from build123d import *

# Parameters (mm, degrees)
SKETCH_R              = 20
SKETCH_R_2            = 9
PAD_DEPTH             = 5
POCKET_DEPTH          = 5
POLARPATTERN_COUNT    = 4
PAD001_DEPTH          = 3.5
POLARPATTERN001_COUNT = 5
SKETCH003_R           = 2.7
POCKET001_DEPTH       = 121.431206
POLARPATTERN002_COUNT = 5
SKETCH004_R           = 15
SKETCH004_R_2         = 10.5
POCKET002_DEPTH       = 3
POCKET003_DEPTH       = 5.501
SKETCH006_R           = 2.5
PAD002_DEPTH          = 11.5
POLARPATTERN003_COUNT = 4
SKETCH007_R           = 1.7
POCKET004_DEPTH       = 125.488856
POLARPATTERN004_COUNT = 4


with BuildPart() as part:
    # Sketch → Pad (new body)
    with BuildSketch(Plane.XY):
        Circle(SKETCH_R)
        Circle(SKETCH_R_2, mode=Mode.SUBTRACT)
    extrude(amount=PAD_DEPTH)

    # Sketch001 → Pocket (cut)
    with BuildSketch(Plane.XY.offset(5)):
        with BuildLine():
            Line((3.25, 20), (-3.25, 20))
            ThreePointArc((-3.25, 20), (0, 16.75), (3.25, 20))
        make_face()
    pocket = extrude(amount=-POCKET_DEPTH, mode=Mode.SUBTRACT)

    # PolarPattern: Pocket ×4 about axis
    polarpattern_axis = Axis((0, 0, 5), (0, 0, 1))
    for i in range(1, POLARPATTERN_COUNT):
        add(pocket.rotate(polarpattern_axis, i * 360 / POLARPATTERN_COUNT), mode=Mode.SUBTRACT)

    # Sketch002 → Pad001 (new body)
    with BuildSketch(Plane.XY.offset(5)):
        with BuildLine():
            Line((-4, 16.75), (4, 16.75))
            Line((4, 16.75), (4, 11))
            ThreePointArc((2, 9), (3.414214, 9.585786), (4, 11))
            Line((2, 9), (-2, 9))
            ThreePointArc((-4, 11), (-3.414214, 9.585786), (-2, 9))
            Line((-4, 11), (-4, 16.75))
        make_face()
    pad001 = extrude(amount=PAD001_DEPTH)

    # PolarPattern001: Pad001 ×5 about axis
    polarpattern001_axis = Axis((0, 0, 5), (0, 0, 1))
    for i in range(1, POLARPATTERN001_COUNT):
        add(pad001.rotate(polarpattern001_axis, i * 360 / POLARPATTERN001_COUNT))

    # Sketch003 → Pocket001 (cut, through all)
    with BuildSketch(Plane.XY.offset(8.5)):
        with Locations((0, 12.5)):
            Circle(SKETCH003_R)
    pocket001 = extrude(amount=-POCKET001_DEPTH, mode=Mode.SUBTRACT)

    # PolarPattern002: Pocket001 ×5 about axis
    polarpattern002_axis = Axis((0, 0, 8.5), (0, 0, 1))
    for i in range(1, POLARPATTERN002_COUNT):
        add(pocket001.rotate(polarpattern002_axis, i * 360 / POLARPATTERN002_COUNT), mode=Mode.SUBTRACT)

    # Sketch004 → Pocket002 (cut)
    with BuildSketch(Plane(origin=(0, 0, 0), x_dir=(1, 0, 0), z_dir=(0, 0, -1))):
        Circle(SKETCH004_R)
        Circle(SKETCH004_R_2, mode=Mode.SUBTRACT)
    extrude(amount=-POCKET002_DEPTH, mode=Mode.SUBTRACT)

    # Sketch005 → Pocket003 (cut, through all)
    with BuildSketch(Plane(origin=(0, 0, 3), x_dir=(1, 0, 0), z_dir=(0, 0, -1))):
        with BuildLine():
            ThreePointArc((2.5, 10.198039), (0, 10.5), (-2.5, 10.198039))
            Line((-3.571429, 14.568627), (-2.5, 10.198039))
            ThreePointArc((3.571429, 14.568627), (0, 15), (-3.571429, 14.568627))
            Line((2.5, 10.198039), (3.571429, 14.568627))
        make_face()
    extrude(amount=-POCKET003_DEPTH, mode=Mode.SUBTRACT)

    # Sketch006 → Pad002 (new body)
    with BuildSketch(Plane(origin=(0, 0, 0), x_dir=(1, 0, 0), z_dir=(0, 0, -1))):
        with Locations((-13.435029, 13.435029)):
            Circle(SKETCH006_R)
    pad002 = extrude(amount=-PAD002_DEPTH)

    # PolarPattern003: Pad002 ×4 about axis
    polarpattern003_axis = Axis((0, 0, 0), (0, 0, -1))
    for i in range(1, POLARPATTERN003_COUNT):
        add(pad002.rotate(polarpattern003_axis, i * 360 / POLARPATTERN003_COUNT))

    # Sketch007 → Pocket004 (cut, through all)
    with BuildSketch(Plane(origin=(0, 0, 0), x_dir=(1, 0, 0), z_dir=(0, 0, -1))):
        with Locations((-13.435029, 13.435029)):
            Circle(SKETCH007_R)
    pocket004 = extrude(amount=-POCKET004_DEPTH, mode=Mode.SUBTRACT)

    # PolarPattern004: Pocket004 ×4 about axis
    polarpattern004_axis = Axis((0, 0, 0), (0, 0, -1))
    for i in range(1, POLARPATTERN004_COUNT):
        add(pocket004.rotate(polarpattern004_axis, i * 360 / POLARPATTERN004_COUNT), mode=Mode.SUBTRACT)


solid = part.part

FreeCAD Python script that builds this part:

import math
import FreeCAD as App
import Part
import Sketcher
from FreeCAD import Vector

doc = App.newDocument("Part")
body = doc.addObject("PartDesign::Body", "Body")

sketch1 = body.newObject("Sketcher::SketchObject", "Sketch")
sketch1.AttachmentSupport = (doc.getObject("XY_Plane"), [""])
sketch1.MapMode = "FlatFace"
sketch1.addGeometry([
    Part.Circle(Vector(0, 0, 0), Vector(0, 0, 1), 20),
    Part.Circle(Vector(0, 0, 0), Vector(0, 0, 1), 9),
], False)
sketch1.addConstraint([
    Sketcher.Constraint("Coincident", 0, 3, -1, 1),
    Sketcher.Constraint("Coincident", 1, 3, -1, 1),
    Sketcher.Constraint("Diameter", 0, 40.0),
    Sketcher.Constraint("Diameter", 1, 18.0),
])
pad1 = body.newObject("PartDesign::Pad", "Pad")
pad1.Profile = sketch1
pad1.Length = 5

sketch2 = body.newObject("Sketcher::SketchObject", "Sketch001")
sketch2.AttachmentSupport = (doc.getObject("XY_Plane"), [""])
sketch2.MapMode = "FlatFace"
sketch2.AttachmentOffset = App.Placement(Vector(0, 0, 5), App.Rotation())
sketch2.addGeometry([
    Part.LineSegment(Vector(3.2, 20, 0), Vector(-3.2, 20, 0)),
    Part.ArcOfCircle(Part.Circle(Vector(0, 20, 0), Vector(0, 0, 1), 3.2), math.radians(180), math.radians(360)),
], False)
sketch2.addConstraint([
    Sketcher.Constraint("Coincident", 0, 1, 1, 2),
    Sketcher.Constraint("Coincident", 1, 1, 0, 2),
    Sketcher.Constraint("Horizontal", 0),
    Sketcher.Constraint("PointOnObject", 1, 3, -2),
    Sketcher.Constraint("Horizontal", 1, 3, 0, 1),
    Sketcher.Constraint("Radius", 1, 3.25),
    Sketcher.Constraint("DistanceY", -1, 1, 1, 3, 20.0),
])
pocket1 = body.newObject("PartDesign::Pocket", "Pocket")
pocket1.Profile = sketch2
pocket1.Length = 5
doc.recompute()

polarpattern = body.newObject("PartDesign::PolarPattern", "PolarPattern")
polarpattern.Originals = [pocket1]
polarpattern.Axis = (doc.getObject("Z_Axis"), [""])
polarpattern.Angle = 360
polarpattern.Occurrences = 4
body.Tip = polarpattern

sketch3 = body.newObject("Sketcher::SketchObject", "Sketch002")
sketch3.AttachmentSupport = (doc.getObject("XY_Plane"), [""])
sketch3.MapMode = "FlatFace"
sketch3.AttachmentOffset = App.Placement(Vector(0, 0, 5), App.Rotation())
sketch3.addGeometry([
    Part.LineSegment(Vector(4, 16.8, 0), Vector(-4, 16.8, 0)),
    Part.LineSegment(Vector(-4, 16.8, 0), Vector(-4, 11, 0)),
    Part.ArcOfCircle(Part.Circle(Vector(-2, 11, 0), Vector(0, 0, 1), 2), math.radians(180), math.radians(270)),
    Part.LineSegment(Vector(-2, 9, 0), Vector(2, 9, 0)),
    Part.ArcOfCircle(Part.Circle(Vector(2, 11, 0), Vector(0, 0, 1), 2), math.radians(-90), math.radians(0)),
    Part.LineSegment(Vector(4, 11, 0), Vector(4, 16.8, 0)),
], False)
sketch3.addConstraint([
    Sketcher.Constraint("Coincident", 0, 2, 1, 1),
    Sketcher.Constraint("Tangent", 1, 2, 2, 1),
    Sketcher.Constraint("Tangent", 2, 2, 3, 1),
    Sketcher.Constraint("Tangent", 3, 2, 4, 1),
    Sketcher.Constraint("Tangent", 4, 2, 5, 1),
    Sketcher.Constraint("Coincident", 5, 2, 0, 1),
    Sketcher.Constraint("Horizontal", 0),
    Sketcher.Constraint("Vertical", 1),
    Sketcher.Constraint("Horizontal", 3),
    Sketcher.Constraint("Vertical", 5),
    Sketcher.Constraint("Equal", 2, 4),
    Sketcher.Constraint("Radius", 2, 1.999999),
    Sketcher.Constraint("DistanceX", 0, 2, 0, 1, 8.0),
    Sketcher.Constraint("DistanceX", 2, 3, -1, 1, 2.000001),
    Sketcher.Constraint("DistanceY", -1, 1, 2, 3, 10.999999),
    Sketcher.Constraint("DistanceY", 1, 2, 1, 1, 5.75),
])
pad2 = body.newObject("PartDesign::Pad", "Pad001")
pad2.Profile = sketch3
pad2.Length = 3.5
doc.recompute()

polarpattern2 = body.newObject("PartDesign::PolarPattern", "PolarPattern001")
polarpattern2.Originals = [pad2]
polarpattern2.Axis = (doc.getObject("Z_Axis"), [""])
polarpattern2.Angle = 360
polarpattern2.Occurrences = 5
body.Tip = polarpattern2

sketch4 = body.newObject("Sketcher::SketchObject", "Sketch003")
sketch4.AttachmentSupport = (doc.getObject("XY_Plane"), [""])
sketch4.MapMode = "FlatFace"
sketch4.AttachmentOffset = App.Placement(Vector(0, 0, 8.5), App.Rotation())
sketch4.addGeometry(Part.Circle(Vector(0, 12.5, 0), Vector(0, 0, 1), 2.7), False)
sketch4.addConstraint([
    Sketcher.Constraint("PointOnObject", 0, 3, -2),
    Sketcher.Constraint("Diameter", 0, 5.4),
    Sketcher.Constraint("DistanceY", -1, 1, 0, 3, 12.5),
])
pocket2 = body.newObject("PartDesign::Pocket", "Pocket001")
pocket2.Profile = sketch4
pocket2.Type = "ThroughAll"
doc.recompute()

polarpattern3 = body.newObject("PartDesign::PolarPattern", "PolarPattern002")
polarpattern3.Originals = [pocket2]
polarpattern3.Axis = (doc.getObject("Z_Axis"), [""])
polarpattern3.Angle = 360
polarpattern3.Occurrences = 5
body.Tip = polarpattern3

sketch5 = body.newObject("Sketcher::SketchObject", "Sketch004")
sketch5.AttachmentSupport = (doc.getObject("XY_Plane"), [""])
sketch5.MapMode = "FlatFace"
sketch5.addGeometry([
    Part.Circle(Vector(0, 0, 0), Vector(0, 0, 1), 15),
    Part.Circle(Vector(0, 0, 0), Vector(0, 0, 1), 10),
], False)
sketch5.addConstraint([
    Sketcher.Constraint("Coincident", 0, 3, -1, 1),
    Sketcher.Constraint("Coincident", 1, 3, -1, 1),
    Sketcher.Constraint("Diameter", 0, 30.0),
    Sketcher.Constraint("Diameter", 1, 21.0),
])
pocket3 = body.newObject("PartDesign::Pocket", "Pocket002")
pocket3.Profile = sketch5
pocket3.Length = 3
pocket3.Reversed = True

sketch6 = body.newObject("Sketcher::SketchObject", "Sketch005")
sketch6.AttachmentSupport = (doc.getObject("XY_Plane"), [""])
sketch6.MapMode = "FlatFace"
sketch6.AttachmentOffset = App.Placement(Vector(0, 0, 3), App.Rotation())
sketch6.addGeometry([
    Part.ArcOfCircle(Part.Circle(Vector(0, 0, 0), Vector(0, 0, 1), 10.5), math.radians(-104), math.radians(-76)),
    Part.LineSegment(Vector(2.5, -10.2, 0), Vector(3.6, -14.6, 0)),
    Part.ArcOfCircle(Part.Circle(Vector(0, 0, 0), Vector(0, 0, 1), 15), math.radians(-104), math.radians(-76)),
    Part.LineSegment(Vector(-3.6, -14.6, 0), Vector(-2.5, -10.2, 0)),
], False)
sketch6.addConstraint([
    Sketcher.Constraint("Coincident", 0, 2, 1, 1),
    Sketcher.Constraint("Coincident", 1, 2, 2, 2),
    Sketcher.Constraint("Coincident", 2, 1, 3, 1),
    Sketcher.Constraint("Coincident", 3, 2, 0, 1),
    Sketcher.Constraint("Coincident", 0, 3, -1, 1),
    Sketcher.Constraint("Coincident", 2, 3, -1, 1),
    Sketcher.Constraint("Horizontal", 1, 2, 2, 1),
    Sketcher.Constraint("Horizontal", 0, 2, 3, 2),
    Sketcher.Constraint("Radius", 0, 10.499999),
    Sketcher.Constraint("DistanceX", 3, 2, 0, 2, 5.0),
    Sketcher.Constraint("Distance", 1, 4.5),
    Sketcher.Constraint("DistanceX", -1, 1, 1, 2, 3.571429),
])
pocket4 = body.newObject("PartDesign::Pocket", "Pocket003")
pocket4.Profile = sketch6
pocket4.Type = "ThroughAll"
pocket4.Reversed = True

sketch7 = body.newObject("Sketcher::SketchObject", "Sketch006")
sketch7.AttachmentSupport = (doc.getObject("XY_Plane"), [""])
sketch7.MapMode = "FlatFace"
sketch7.addGeometry(Part.Circle(Vector(-13.4, -13.4, 0), Vector(0, 0, 1), 2.5), False)
sketch7.addConstraint([
    Sketcher.Constraint("Diameter", 0, 5.0),
    Sketcher.Constraint("DistanceX", 0, 3, -1, 1, 13.435029),
    Sketcher.Constraint("DistanceY", 0, 3, -1, 1, 13.435029),
])
pad3 = body.newObject("PartDesign::Pad", "Pad002")
pad3.Profile = sketch7
pad3.Length = 11.5
doc.recompute()

polarpattern4 = body.newObject("PartDesign::PolarPattern", "PolarPattern003")
polarpattern4.Originals = [pad3]
polarpattern4.Axis = (doc.getObject("Z_Axis"), [""])
polarpattern4.Angle = 360
polarpattern4.Occurrences = 4
body.Tip = polarpattern4

sketch8 = body.newObject("Sketcher::SketchObject", "Sketch007")
sketch8.AttachmentSupport = (doc.getObject("XY_Plane"), [""])
sketch8.MapMode = "FlatFace"
sketch8.addGeometry(Part.Circle(Vector(-13.4, -13.4, 0), Vector(0, 0, 1), 1.7), False)
sketch8.addConstraint([
    Sketcher.Constraint("Diameter", 0, 3.4),
    Sketcher.Constraint("DistanceX", 0, 3, -1, 1, 13.435029),
    Sketcher.Constraint("DistanceY", 0, 3, -1, 1, 13.435029),
])
pocket5 = body.newObject("PartDesign::Pocket", "Pocket004")
pocket5.Profile = sketch8
pocket5.Type = "ThroughAll"
pocket5.Reversed = True
doc.recompute()

polarpattern5 = body.newObject("PartDesign::PolarPattern", "PolarPattern004")
polarpattern5.Originals = [pocket5]
polarpattern5.Axis = (doc.getObject("Z_Axis"), [""])
polarpattern5.Angle = 360
polarpattern5.Occurrences = 4
body.Tip = polarpattern5

doc.recompute()
